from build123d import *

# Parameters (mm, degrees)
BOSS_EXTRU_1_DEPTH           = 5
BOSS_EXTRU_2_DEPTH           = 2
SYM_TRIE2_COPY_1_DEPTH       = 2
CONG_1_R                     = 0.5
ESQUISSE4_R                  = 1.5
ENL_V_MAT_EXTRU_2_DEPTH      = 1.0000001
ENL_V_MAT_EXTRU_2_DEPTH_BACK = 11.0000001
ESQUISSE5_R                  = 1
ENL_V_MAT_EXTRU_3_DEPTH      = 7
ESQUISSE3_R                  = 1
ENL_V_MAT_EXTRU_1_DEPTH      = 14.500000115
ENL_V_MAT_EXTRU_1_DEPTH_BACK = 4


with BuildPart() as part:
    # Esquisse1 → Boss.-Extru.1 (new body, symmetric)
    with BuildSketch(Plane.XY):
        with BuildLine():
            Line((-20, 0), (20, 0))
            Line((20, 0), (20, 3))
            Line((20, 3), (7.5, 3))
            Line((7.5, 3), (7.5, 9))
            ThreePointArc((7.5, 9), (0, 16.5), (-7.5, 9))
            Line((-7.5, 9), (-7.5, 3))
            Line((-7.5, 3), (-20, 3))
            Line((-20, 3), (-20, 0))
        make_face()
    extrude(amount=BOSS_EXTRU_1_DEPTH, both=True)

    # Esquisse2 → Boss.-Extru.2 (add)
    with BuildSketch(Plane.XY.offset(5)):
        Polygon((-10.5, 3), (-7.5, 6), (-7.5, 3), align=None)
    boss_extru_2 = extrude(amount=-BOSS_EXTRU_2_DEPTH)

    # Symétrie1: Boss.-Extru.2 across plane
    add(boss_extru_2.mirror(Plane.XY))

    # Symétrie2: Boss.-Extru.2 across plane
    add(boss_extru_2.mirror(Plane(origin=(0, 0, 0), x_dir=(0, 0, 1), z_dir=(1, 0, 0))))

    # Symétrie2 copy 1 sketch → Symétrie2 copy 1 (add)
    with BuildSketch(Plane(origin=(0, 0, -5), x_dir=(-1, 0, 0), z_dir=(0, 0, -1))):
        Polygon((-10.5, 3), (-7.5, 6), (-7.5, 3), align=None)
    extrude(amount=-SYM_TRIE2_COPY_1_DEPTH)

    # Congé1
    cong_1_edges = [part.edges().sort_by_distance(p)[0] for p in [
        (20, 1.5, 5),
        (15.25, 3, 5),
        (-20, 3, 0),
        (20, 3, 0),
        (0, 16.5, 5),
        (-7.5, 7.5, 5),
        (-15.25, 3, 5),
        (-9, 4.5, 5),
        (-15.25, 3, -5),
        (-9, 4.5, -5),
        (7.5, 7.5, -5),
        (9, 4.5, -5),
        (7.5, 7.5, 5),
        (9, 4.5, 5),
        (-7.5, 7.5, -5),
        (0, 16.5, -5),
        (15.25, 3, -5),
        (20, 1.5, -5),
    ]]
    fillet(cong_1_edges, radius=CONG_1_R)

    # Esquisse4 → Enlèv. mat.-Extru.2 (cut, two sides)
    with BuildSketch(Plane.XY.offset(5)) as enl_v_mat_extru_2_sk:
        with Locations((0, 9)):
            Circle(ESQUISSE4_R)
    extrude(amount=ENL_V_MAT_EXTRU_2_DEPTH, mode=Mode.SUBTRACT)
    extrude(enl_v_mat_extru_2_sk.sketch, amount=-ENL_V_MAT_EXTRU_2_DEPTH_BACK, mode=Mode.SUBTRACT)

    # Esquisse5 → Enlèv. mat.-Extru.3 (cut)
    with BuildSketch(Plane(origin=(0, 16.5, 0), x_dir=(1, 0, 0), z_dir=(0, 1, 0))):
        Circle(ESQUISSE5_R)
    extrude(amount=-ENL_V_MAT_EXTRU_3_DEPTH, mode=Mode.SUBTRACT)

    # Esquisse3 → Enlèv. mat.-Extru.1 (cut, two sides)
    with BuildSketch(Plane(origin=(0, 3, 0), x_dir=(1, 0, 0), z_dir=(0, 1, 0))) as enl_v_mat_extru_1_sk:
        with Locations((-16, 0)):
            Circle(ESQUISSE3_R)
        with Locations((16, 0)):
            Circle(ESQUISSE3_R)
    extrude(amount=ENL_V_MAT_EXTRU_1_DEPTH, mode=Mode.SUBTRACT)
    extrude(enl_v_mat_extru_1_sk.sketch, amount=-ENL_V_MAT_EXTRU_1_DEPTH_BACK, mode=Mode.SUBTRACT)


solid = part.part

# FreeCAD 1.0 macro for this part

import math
import FreeCAD as App
import Part
import Sketcher
Q = App.Units.Quantity


def edges_at(feature, points):
    """Names of the edges that pass closest to the given points."""
    edges = feature.Shape.Edges
    near = lambda p: min(range(len(edges)), key=lambda i: edges[i].distToShape(Part.Vertex(*p))[0])
    return sorted({f"Edge{near(p) + 1}" for p in points})

doc = App.newDocument("Part")
params = doc.addObject("Spreadsheet::Sheet", "Params")
for row, (alias, value) in enumerate([
    ("sketch1_radius", "7.5 mm"),
    ("sketch1_width", "40 mm"),
    ("sketch1_height", "3 mm"),
    ("sketch1_height2", "6 mm"),
    ("pad1_length", "10 mm"),
    ("sketch2_width", "3 mm"),
    ("pad2_length", "2 mm"),
    ("sketch3_width", "3 mm"),
    ("pad3_length", "2 mm"),
    ("fillet_radius", "0.5 mm"),
    ("sketch4_diameter", "3 mm"),
    ("sketch5_diameter", "2 mm"),
    ("pocket2_length", "7 mm"),
    ("sketch6_diameter", "2 mm"),
], start=1):
    params.set(f"A{row}", alias)
    params.set(f"B{row}", "=" + value)
    params.setAlias(f"B{row}", alias)

body = doc.addObject("PartDesign::Body", "Body")

sketch1 = doc.addObject("Sketcher::SketchObject", "Sketch")
body.addObject(sketch1)
sketch1.AttachmentSupport = (doc.XY_Plane, [""])
sketch1.MapMode = "FlatFace"
sketch1.addGeometry(Part.LineSegment(App.Vector(-20, 0, 0), App.Vector(20, 0, 0)), False)
sketch1.addGeometry(Part.LineSegment(App.Vector(20, 0, 0), App.Vector(20, 3, 0)), False)
sketch1.addGeometry(Part.LineSegment(App.Vector(20, 3, 0), App.Vector(7.5, 3, 0)), False)
sketch1.addGeometry(Part.LineSegment(App.Vector(7.5, 3, 0), App.Vector(7.5, 9, 0)), False)
sketch1.addGeometry(Part.ArcOfCircle(Part.Circle(App.Vector(0, 9, 0), App.Vector(0, 0, 1), 7.5), math.radians(0), math.radians(180)), False)
sketch1.addGeometry(Part.LineSegment(App.Vector(-7.5, 9, 0), App.Vector(-7.5, 3, 0)), False)
sketch1.addGeometry(Part.LineSegment(App.Vector(-7.5, 3, 0), App.Vector(-20, 3, 0)), False)
sketch1.addGeometry(Part.LineSegment(App.Vector(-20, 3, 0), App.Vector(-20, 0, 0)), False)
sketch1.addConstraint(Sketcher.Constraint("Coincident", 0, 2, 1, 1))
sketch1.addConstraint(Sketcher.Constraint("Coincident", 1, 2, 2, 1))
sketch1.addConstraint(Sketcher.Constraint("Coincident", 2, 2, 3, 1))
sketch1.addConstraint(Sketcher.Constraint("Tangent", 3, 2, 4, 1))
sketch1.addConstraint(Sketcher.Constraint("Tangent", 4, 2, 5, 1))
sketch1.addConstraint(Sketcher.Constraint("Coincident", 5, 2, 6, 1))
sketch1.addConstraint(Sketcher.Constraint("Coincident", 6, 2, 7, 1))
sketch1.addConstraint(Sketcher.Constraint("Coincident", 7, 2, 0, 1))
sketch1.addConstraint(Sketcher.Constraint("Horizontal", 0))
sketch1.addConstraint(Sketcher.Constraint("Vertical", 1))
sketch1.addConstraint(Sketcher.Constraint("Horizontal", 2))
sketch1.addConstraint(Sketcher.Constraint("Vertical", 3))
sketch1.addConstraint(Sketcher.Constraint("Vertical", 5))
sketch1.addConstraint(Sketcher.Constraint("Horizontal", 6))
sketch1.addConstraint(Sketcher.Constraint("Vertical", 7))
sketch1.addConstraint(Sketcher.Constraint("Symmetric", 0, 2, 7, 2, -1, 1))
sketch1.addConstraint(Sketcher.Constraint("Symmetric", 2, 2, 5, 2, -2))
sketch1.addConstraint(Sketcher.Constraint("Radius", 4, Q("7.5 mm")))
sketch1.addConstraint(Sketcher.Constraint("DistanceX", 0, 1, 0, 2, Q("40 mm")))
sketch1.addConstraint(Sketcher.Constraint("DistanceY", 1, 1, 1, 2, Q("3 mm")))
sketch1.addConstraint(Sketcher.Constraint("DistanceY", 3, 1, 3, 2, Q("6 mm")))
sketch1.setExpression("Constraints[17]", "Params.sketch1_radius")
sketch1.setExpression("Constraints[18]", "Params.sketch1_width")
sketch1.setExpression("Constraints[19]", "Params.sketch1_height")
sketch1.setExpression("Constraints[20]", "Params.sketch1_height2")
pad1 = doc.addObject("PartDesign::Pad", "Pad")
body.addObject(pad1)
pad1.Profile = sketch1
pad1.setExpression("Length", "Params.pad1_length")
pad1.Midplane = True

sketch2 = doc.addObject("Sketcher::SketchObject", "Sketch001")
body.addObject(sketch2)
sketch2.AttachmentSupport = (doc.XY_Plane, [""])
sketch2.MapMode = "FlatFace"
sketch2.AttachmentOffset = App.Placement(App.Vector(0, 0, 5), App.Rotation())
sketch2.addGeometry(Part.LineSegment(App.Vector(-7.5, 6, 0), App.Vector(-10.5, 3, 0)), False)
sketch2.addGeometry(Part.LineSegment(App.Vector(-10.5, 3, 0), App.Vector(-7.5, 3, 0)), False)
sketch2.addGeometry(Part.LineSegment(App.Vector(-7.5, 3, 0), App.Vector(-7.5, 6, 0)), False)
sketch2.addConstraint(Sketcher.Constraint("Coincident", 0, 2, 1, 1))
sketch2.addConstraint(Sketcher.Constraint("Coincident", 1, 2, 2, 1))
sketch2.addConstraint(Sketcher.Constraint("Coincident", 2, 2, 0, 1))
sketch2.addConstraint(Sketcher.Constraint("Horizontal", 1))
sketch2.addConstraint(Sketcher.Constraint("Vertical", 2))
sketch2.addConstraint(Sketcher.Constraint("Equal", 1, 2))
sketch2.addConstraint(Sketcher.Constraint("DistanceX", 1, 1, 1, 2, Q("3 mm")))
sketch2.addConstraint(Sketcher.Constraint("DistanceY", -1, 1, 0, 2, Q("3 mm")))
sketch2.addConstraint(Sketcher.Constraint("DistanceX", 0, 2, -1, 1, Q("10.5 mm")))
sketch2.setExpression("Constraints[6]", "Params.sketch2_width")
pad2 = doc.addObject("PartDesign::Pad", "Pad001")
body.addObject(pad2)
pad2.Profile = sketch2
pad2.setExpression("Length", "Params.pad2_length")
pad2.Reversed = True
doc.recompute()

mirrored = doc.addObject("PartDesign::Mirrored", "Mirrored")
body.addObject(mirrored)
mirrored.Originals = [pad2]
mirrored.MirrorPlane = (doc.XY_Plane, [""])
body.Tip = mirrored
doc.recompute()

mirrored2 = doc.addObject("PartDesign::Mirrored", "Mirrored001")
body.addObject(mirrored2)
mirrored2.Originals = [pad2]
mirrored2.MirrorPlane = (doc.YZ_Plane, [""])
body.Tip = mirrored2

sketch3 = doc.addObject("Sketcher::SketchObject", "Sketch002")
body.addObject(sketch3)
sketch3.AttachmentSupport = (doc.XY_Plane, [""])
sketch3.MapMode = "FlatFace"
sketch3.AttachmentOffset = App.Placement(App.Vector(0, 0, -5), App.Rotation())
sketch3.addGeometry(Part.LineSegment(App.Vector(7.5, 6, 0), App.Vector(10.5, 3, 0)), False)
sketch3.addGeometry(Part.LineSegment(App.Vector(10.5, 3, 0), App.Vector(7.5, 3, 0)), False)
sketch3.addGeometry(Part.LineSegment(App.Vector(7.5, 3, 0), App.Vector(7.5, 6, 0)), False)
sketch3.addConstraint(Sketcher.Constraint("Coincident", 0, 2, 1, 1))
sketch3.addConstraint(Sketcher.Constraint("Coincident", 1, 2, 2, 1))
sketch3.addConstraint(Sketcher.Constraint("Coincident", 2, 2, 0, 1))
sketch3.addConstraint(Sketcher.Constraint("Horizontal", 1))
sketch3.addConstraint(Sketcher.Constraint("Vertical", 2))
sketch3.addConstraint(Sketcher.Constraint("Equal", 1, 2))
sketch3.addConstraint(Sketcher.Constraint("DistanceX", 1, 2, 1, 1, Q("3 mm")))
sketch3.addConstraint(Sketcher.Constraint("DistanceY", -1, 1, 0, 2, Q("3 mm")))
sketch3.addConstraint(Sketcher.Constraint("DistanceX", -1, 1, 0, 2, Q("10.5 mm")))
sketch3.setExpression("Constraints[6]", "Params.sketch3_width")
pad3 = doc.addObject("PartDesign::Pad", "Pad002")
body.addObject(pad3)
pad3.Profile = sketch3
pad3.setExpression("Length", "Params.pad3_length")
doc.recompute()

fillet = doc.addObject("PartDesign::Fillet", "Fillet")
body.addObject(fillet)
fillet.Base = (pad3, edges_at(pad3, [
    (20, 1.5, 5),
    (15.25, 3, 5),
    (-20, 3, 0),
    (20, 3, 0),
    (0, 16.5, 5),
    (-7.5, 7.5, 5),
    (-15.25, 3, 5),
    (-9, 4.5, 5),
    (-15.25, 3, -5),
    (-9, 4.5, -5),
    (7.5, 7.5, -5),
    (9, 4.5, -5),
    (7.5, 7.5, 5),
    (9, 4.5, 5),
    (-7.5, 7.5, -5),
    (0, 16.5, -5),
    (15.25, 3, -5),
    (20, 1.5, -5),
]))
fillet.setExpression("Radius", "Params.fillet_radius")

sketch4 = doc.addObject("Sketcher::SketchObject", "Sketch003")
body.addObject(sketch4)
sketch4.AttachmentSupport = (doc.XY_Plane, [""])
sketch4.MapMode = "FlatFace"
sketch4.AttachmentOffset = App.Placement(App.Vector(0, 0, 5), App.Rotation())
sketch4.addGeometry(Part.Circle(App.Vector(0, 9, 0), App.Vector(0, 0, 1), 1.5), False)
sketch4.addConstraint(Sketcher.Constraint("PointOnObject", 0, 3, -2))
sketch4.addConstraint(Sketcher.Constraint("Diameter", 0, Q("3 mm")))
sketch4.addConstraint(Sketcher.Constraint("DistanceY", -1, 1, 0, 3, Q("9 mm")))
sketch4.setExpression("Constraints[1]", "Params.sketch4_diameter")
pocket1 = doc.addObject("PartDesign::Pocket", "Pocket")
body.addObject(pocket1)
pocket1.Profile = sketch4
pocket1.Type = "ThroughAll"
pocket1.Midplane = True

sketch5 = doc.addObject("Sketcher::SketchObject", "Sketch004")
body.addObject(sketch5)
sketch5.AttachmentSupport = (doc.XZ_Plane, [""])
sketch5.MapMode = "FlatFace"
sketch5.AttachmentOffset = App.Placement(App.Vector(0, 0, -16.5), App.Rotation())
sketch5.addGeometry(Part.Circle(App.Vector(0, 0, 0), App.Vector(0, 0, 1), 1), False)
sketch5.addConstraint(Sketcher.Constraint("Coincident", 0, 3, -1, 1))
sketch5.addConstraint(Sketcher.Constraint("Diameter", 0, Q("2 mm")))
sketch5.setExpression("Constraints[1]", "Params.sketch5_diameter")
pocket2 = doc.addObject("PartDesign::Pocket", "Pocket001")
body.addObject(pocket2)
pocket2.Profile = sketch5
pocket2.setExpression("Length", "Params.pocket2_length")
pocket2.Reversed = True

sketch6 = doc.addObject("Sketcher::SketchObject", "Sketch005")
body.addObject(sketch6)
sketch6.AttachmentSupport = (doc.XZ_Plane, [""])
sketch6.MapMode = "FlatFace"
sketch6.AttachmentOffset = App.Placement(App.Vector(0, 0, -3), App.Rotation())
sketch6.addGeometry(Part.Circle(App.Vector(-16, 0, 0), App.Vector(0, 0, 1), 1), False)
sketch6.addGeometry(Part.Circle(App.Vector(16, 0, 0), App.Vector(0, 0, 1), 1), False)
sketch6.addConstraint(Sketcher.Constraint("Equal", 0, 1))
sketch6.addConstraint(Sketcher.Constraint("Symmetric", 0, 3, 1, 3, -1, 1))
sketch6.addConstraint(Sketcher.Constraint("PointOnObject", 0, 3, -1))
sketch6.addConstraint(Sketcher.Constraint("Diameter", 0, Q("2 mm")))
sketch6.addConstraint(Sketcher.Constraint("DistanceX", 0, 3, -1, 1, Q("16 mm")))
sketch6.setExpression("Constraints[3]", "Params.sketch6_diameter")
pocket3 = doc.addObject("PartDesign::Pocket", "Pocket002")
body.addObject(pocket3)
pocket3.Profile = sketch6
pocket3.Type = "ThroughAll"
pocket3.Midplane = True

doc.recompute()
